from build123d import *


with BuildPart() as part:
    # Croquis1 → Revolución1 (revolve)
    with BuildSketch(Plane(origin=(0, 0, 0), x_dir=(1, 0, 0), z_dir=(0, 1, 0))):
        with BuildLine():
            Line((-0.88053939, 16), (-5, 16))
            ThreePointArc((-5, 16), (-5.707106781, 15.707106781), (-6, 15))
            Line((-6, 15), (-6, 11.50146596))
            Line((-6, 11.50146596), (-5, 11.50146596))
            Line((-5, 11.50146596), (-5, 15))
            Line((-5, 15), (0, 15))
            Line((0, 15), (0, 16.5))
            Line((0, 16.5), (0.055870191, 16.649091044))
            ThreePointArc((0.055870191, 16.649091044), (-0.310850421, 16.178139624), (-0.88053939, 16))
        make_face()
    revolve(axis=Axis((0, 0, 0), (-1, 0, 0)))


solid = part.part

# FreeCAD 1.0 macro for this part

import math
import FreeCAD as App
import Part
import Sketcher

V = App.Vector
Q = App.Units.Quantity

doc = App.newDocument("Part")
body = doc.addObject("PartDesign::Body", "Body")

# Sketch on XZ plane
sketch1 = body.newObject("Sketcher::SketchObject", "Sketch")
sketch1.AttachmentSupport = (doc.getObject("XZ_Plane"), [""])
sketch1.MapMode = "FlatFace"
sketch1.addGeometry(Part.LineSegment(V(-0.880539, -16, 0), V(-5, -16, 0)), False)
sketch1.addGeometry(Part.ArcOfCircle(Part.Circle(V(-5, -15, 0), V(0, 0, 1), 1), math.radians(-180), math.radians(-90)), False)
sketch1.addGeometry(Part.LineSegment(V(-6, -15, 0), V(-6, -11.501466, 0)), False)
sketch1.addGeometry(Part.LineSegment(V(-6, -11.501466, 0), V(-5, -11.501466, 0)), False)
sketch1.addGeometry(Part.LineSegment(V(-5, -11.501466, 0), V(-5, -15, 0)), False)
sketch1.addGeometry(Part.LineSegment(V(-5, -15, 0), V(0, -15, 0)), False)
sketch1.addGeometry(Part.LineSegment(V(0, -15, 0), V(0, -16.5, 0)), False)
sketch1.addGeometry(Part.LineSegment(V(0, -16.5, 0), V(0.05587, -16.649091, 0)), False)
sketch1.addGeometry(Part.ArcOfCircle(Part.Circle(V(-0.880539, -17, 0), V(0, 0, 1), 1), math.radians(20.542921), math.radians(90)), False)
sketch1.addConstraint(Sketcher.Constraint("Tangent", 0, 2, 1, 2))
sketch1.addConstraint(Sketcher.Constraint("Tangent", 1, 1, 2, 1))
sketch1.addConstraint(Sketcher.Constraint("Coincident", 2, 2, 3, 1))
sketch1.addConstraint(Sketcher.Constraint("Coincident", 3, 2, 4, 1))
sketch1.addConstraint(Sketcher.Constraint("Coincident", 4, 2, 5, 1))
sketch1.addConstraint(Sketcher.Constraint("Coincident", 5, 2, 6, 1))
sketch1.addConstraint(Sketcher.Constraint("Coincident", 6, 2, 7, 1))
sketch1.addConstraint(Sketcher.Constraint("Tangent", 7, 2, 8, 1))
sketch1.addConstraint(Sketcher.Constraint("Tangent", 8, 2, 0, 1))
sketch1.addConstraint(Sketcher.Constraint("Horizontal", 0))
sketch1.addConstraint(Sketcher.Constraint("Vertical", 2))
sketch1.addConstraint(Sketcher.Constraint("Horizontal", 3))
sketch1.addConstraint(Sketcher.Constraint("Vertical", 4))
sketch1.addConstraint(Sketcher.Constraint("Horizontal", 5))
sketch1.addConstraint(Sketcher.Constraint("Vertical", 6))
sketch1.addConstraint(Sketcher.Constraint("Coincident", 4, 2, 1, 3))
sketch1.addConstraint(Sketcher.Constraint("Equal", 1, 8))
sketch1.addConstraint(Sketcher.Constraint("PointOnObject", 5, 2, -2))
sketch1.addConstraint(Sketcher.Constraint("Radius", 1, Q("1 mm")))
sketch1.addConstraint(Sketcher.Constraint("DistanceX", 5, 1, 5, 2, Q("5 mm")))
sketch1.addConstraint(Sketcher.Constraint("DistanceY", 6, 2, 6, 1, Q("1.5 mm")))
sketch1.addConstraint(Sketcher.Constraint("DistanceY", 1, 3, -1, 1, Q("15 mm")))
sketch1.addConstraint(Sketcher.Constraint("DistanceX", 0, 2, 0, 1, Q("4.119461 mm")))
sketch1.addConstraint(Sketcher.Constraint("DistanceY", 2, 1, 2, 2, Q("3.498534 mm")))
revolution = body.newObject("PartDesign::Revolution", "Revolution")
revolution.Profile = sketch1
revolution.ReferenceAxis = (sketch1, ["H_Axis"])
revolution.Angle = 360

doc.recompute()
